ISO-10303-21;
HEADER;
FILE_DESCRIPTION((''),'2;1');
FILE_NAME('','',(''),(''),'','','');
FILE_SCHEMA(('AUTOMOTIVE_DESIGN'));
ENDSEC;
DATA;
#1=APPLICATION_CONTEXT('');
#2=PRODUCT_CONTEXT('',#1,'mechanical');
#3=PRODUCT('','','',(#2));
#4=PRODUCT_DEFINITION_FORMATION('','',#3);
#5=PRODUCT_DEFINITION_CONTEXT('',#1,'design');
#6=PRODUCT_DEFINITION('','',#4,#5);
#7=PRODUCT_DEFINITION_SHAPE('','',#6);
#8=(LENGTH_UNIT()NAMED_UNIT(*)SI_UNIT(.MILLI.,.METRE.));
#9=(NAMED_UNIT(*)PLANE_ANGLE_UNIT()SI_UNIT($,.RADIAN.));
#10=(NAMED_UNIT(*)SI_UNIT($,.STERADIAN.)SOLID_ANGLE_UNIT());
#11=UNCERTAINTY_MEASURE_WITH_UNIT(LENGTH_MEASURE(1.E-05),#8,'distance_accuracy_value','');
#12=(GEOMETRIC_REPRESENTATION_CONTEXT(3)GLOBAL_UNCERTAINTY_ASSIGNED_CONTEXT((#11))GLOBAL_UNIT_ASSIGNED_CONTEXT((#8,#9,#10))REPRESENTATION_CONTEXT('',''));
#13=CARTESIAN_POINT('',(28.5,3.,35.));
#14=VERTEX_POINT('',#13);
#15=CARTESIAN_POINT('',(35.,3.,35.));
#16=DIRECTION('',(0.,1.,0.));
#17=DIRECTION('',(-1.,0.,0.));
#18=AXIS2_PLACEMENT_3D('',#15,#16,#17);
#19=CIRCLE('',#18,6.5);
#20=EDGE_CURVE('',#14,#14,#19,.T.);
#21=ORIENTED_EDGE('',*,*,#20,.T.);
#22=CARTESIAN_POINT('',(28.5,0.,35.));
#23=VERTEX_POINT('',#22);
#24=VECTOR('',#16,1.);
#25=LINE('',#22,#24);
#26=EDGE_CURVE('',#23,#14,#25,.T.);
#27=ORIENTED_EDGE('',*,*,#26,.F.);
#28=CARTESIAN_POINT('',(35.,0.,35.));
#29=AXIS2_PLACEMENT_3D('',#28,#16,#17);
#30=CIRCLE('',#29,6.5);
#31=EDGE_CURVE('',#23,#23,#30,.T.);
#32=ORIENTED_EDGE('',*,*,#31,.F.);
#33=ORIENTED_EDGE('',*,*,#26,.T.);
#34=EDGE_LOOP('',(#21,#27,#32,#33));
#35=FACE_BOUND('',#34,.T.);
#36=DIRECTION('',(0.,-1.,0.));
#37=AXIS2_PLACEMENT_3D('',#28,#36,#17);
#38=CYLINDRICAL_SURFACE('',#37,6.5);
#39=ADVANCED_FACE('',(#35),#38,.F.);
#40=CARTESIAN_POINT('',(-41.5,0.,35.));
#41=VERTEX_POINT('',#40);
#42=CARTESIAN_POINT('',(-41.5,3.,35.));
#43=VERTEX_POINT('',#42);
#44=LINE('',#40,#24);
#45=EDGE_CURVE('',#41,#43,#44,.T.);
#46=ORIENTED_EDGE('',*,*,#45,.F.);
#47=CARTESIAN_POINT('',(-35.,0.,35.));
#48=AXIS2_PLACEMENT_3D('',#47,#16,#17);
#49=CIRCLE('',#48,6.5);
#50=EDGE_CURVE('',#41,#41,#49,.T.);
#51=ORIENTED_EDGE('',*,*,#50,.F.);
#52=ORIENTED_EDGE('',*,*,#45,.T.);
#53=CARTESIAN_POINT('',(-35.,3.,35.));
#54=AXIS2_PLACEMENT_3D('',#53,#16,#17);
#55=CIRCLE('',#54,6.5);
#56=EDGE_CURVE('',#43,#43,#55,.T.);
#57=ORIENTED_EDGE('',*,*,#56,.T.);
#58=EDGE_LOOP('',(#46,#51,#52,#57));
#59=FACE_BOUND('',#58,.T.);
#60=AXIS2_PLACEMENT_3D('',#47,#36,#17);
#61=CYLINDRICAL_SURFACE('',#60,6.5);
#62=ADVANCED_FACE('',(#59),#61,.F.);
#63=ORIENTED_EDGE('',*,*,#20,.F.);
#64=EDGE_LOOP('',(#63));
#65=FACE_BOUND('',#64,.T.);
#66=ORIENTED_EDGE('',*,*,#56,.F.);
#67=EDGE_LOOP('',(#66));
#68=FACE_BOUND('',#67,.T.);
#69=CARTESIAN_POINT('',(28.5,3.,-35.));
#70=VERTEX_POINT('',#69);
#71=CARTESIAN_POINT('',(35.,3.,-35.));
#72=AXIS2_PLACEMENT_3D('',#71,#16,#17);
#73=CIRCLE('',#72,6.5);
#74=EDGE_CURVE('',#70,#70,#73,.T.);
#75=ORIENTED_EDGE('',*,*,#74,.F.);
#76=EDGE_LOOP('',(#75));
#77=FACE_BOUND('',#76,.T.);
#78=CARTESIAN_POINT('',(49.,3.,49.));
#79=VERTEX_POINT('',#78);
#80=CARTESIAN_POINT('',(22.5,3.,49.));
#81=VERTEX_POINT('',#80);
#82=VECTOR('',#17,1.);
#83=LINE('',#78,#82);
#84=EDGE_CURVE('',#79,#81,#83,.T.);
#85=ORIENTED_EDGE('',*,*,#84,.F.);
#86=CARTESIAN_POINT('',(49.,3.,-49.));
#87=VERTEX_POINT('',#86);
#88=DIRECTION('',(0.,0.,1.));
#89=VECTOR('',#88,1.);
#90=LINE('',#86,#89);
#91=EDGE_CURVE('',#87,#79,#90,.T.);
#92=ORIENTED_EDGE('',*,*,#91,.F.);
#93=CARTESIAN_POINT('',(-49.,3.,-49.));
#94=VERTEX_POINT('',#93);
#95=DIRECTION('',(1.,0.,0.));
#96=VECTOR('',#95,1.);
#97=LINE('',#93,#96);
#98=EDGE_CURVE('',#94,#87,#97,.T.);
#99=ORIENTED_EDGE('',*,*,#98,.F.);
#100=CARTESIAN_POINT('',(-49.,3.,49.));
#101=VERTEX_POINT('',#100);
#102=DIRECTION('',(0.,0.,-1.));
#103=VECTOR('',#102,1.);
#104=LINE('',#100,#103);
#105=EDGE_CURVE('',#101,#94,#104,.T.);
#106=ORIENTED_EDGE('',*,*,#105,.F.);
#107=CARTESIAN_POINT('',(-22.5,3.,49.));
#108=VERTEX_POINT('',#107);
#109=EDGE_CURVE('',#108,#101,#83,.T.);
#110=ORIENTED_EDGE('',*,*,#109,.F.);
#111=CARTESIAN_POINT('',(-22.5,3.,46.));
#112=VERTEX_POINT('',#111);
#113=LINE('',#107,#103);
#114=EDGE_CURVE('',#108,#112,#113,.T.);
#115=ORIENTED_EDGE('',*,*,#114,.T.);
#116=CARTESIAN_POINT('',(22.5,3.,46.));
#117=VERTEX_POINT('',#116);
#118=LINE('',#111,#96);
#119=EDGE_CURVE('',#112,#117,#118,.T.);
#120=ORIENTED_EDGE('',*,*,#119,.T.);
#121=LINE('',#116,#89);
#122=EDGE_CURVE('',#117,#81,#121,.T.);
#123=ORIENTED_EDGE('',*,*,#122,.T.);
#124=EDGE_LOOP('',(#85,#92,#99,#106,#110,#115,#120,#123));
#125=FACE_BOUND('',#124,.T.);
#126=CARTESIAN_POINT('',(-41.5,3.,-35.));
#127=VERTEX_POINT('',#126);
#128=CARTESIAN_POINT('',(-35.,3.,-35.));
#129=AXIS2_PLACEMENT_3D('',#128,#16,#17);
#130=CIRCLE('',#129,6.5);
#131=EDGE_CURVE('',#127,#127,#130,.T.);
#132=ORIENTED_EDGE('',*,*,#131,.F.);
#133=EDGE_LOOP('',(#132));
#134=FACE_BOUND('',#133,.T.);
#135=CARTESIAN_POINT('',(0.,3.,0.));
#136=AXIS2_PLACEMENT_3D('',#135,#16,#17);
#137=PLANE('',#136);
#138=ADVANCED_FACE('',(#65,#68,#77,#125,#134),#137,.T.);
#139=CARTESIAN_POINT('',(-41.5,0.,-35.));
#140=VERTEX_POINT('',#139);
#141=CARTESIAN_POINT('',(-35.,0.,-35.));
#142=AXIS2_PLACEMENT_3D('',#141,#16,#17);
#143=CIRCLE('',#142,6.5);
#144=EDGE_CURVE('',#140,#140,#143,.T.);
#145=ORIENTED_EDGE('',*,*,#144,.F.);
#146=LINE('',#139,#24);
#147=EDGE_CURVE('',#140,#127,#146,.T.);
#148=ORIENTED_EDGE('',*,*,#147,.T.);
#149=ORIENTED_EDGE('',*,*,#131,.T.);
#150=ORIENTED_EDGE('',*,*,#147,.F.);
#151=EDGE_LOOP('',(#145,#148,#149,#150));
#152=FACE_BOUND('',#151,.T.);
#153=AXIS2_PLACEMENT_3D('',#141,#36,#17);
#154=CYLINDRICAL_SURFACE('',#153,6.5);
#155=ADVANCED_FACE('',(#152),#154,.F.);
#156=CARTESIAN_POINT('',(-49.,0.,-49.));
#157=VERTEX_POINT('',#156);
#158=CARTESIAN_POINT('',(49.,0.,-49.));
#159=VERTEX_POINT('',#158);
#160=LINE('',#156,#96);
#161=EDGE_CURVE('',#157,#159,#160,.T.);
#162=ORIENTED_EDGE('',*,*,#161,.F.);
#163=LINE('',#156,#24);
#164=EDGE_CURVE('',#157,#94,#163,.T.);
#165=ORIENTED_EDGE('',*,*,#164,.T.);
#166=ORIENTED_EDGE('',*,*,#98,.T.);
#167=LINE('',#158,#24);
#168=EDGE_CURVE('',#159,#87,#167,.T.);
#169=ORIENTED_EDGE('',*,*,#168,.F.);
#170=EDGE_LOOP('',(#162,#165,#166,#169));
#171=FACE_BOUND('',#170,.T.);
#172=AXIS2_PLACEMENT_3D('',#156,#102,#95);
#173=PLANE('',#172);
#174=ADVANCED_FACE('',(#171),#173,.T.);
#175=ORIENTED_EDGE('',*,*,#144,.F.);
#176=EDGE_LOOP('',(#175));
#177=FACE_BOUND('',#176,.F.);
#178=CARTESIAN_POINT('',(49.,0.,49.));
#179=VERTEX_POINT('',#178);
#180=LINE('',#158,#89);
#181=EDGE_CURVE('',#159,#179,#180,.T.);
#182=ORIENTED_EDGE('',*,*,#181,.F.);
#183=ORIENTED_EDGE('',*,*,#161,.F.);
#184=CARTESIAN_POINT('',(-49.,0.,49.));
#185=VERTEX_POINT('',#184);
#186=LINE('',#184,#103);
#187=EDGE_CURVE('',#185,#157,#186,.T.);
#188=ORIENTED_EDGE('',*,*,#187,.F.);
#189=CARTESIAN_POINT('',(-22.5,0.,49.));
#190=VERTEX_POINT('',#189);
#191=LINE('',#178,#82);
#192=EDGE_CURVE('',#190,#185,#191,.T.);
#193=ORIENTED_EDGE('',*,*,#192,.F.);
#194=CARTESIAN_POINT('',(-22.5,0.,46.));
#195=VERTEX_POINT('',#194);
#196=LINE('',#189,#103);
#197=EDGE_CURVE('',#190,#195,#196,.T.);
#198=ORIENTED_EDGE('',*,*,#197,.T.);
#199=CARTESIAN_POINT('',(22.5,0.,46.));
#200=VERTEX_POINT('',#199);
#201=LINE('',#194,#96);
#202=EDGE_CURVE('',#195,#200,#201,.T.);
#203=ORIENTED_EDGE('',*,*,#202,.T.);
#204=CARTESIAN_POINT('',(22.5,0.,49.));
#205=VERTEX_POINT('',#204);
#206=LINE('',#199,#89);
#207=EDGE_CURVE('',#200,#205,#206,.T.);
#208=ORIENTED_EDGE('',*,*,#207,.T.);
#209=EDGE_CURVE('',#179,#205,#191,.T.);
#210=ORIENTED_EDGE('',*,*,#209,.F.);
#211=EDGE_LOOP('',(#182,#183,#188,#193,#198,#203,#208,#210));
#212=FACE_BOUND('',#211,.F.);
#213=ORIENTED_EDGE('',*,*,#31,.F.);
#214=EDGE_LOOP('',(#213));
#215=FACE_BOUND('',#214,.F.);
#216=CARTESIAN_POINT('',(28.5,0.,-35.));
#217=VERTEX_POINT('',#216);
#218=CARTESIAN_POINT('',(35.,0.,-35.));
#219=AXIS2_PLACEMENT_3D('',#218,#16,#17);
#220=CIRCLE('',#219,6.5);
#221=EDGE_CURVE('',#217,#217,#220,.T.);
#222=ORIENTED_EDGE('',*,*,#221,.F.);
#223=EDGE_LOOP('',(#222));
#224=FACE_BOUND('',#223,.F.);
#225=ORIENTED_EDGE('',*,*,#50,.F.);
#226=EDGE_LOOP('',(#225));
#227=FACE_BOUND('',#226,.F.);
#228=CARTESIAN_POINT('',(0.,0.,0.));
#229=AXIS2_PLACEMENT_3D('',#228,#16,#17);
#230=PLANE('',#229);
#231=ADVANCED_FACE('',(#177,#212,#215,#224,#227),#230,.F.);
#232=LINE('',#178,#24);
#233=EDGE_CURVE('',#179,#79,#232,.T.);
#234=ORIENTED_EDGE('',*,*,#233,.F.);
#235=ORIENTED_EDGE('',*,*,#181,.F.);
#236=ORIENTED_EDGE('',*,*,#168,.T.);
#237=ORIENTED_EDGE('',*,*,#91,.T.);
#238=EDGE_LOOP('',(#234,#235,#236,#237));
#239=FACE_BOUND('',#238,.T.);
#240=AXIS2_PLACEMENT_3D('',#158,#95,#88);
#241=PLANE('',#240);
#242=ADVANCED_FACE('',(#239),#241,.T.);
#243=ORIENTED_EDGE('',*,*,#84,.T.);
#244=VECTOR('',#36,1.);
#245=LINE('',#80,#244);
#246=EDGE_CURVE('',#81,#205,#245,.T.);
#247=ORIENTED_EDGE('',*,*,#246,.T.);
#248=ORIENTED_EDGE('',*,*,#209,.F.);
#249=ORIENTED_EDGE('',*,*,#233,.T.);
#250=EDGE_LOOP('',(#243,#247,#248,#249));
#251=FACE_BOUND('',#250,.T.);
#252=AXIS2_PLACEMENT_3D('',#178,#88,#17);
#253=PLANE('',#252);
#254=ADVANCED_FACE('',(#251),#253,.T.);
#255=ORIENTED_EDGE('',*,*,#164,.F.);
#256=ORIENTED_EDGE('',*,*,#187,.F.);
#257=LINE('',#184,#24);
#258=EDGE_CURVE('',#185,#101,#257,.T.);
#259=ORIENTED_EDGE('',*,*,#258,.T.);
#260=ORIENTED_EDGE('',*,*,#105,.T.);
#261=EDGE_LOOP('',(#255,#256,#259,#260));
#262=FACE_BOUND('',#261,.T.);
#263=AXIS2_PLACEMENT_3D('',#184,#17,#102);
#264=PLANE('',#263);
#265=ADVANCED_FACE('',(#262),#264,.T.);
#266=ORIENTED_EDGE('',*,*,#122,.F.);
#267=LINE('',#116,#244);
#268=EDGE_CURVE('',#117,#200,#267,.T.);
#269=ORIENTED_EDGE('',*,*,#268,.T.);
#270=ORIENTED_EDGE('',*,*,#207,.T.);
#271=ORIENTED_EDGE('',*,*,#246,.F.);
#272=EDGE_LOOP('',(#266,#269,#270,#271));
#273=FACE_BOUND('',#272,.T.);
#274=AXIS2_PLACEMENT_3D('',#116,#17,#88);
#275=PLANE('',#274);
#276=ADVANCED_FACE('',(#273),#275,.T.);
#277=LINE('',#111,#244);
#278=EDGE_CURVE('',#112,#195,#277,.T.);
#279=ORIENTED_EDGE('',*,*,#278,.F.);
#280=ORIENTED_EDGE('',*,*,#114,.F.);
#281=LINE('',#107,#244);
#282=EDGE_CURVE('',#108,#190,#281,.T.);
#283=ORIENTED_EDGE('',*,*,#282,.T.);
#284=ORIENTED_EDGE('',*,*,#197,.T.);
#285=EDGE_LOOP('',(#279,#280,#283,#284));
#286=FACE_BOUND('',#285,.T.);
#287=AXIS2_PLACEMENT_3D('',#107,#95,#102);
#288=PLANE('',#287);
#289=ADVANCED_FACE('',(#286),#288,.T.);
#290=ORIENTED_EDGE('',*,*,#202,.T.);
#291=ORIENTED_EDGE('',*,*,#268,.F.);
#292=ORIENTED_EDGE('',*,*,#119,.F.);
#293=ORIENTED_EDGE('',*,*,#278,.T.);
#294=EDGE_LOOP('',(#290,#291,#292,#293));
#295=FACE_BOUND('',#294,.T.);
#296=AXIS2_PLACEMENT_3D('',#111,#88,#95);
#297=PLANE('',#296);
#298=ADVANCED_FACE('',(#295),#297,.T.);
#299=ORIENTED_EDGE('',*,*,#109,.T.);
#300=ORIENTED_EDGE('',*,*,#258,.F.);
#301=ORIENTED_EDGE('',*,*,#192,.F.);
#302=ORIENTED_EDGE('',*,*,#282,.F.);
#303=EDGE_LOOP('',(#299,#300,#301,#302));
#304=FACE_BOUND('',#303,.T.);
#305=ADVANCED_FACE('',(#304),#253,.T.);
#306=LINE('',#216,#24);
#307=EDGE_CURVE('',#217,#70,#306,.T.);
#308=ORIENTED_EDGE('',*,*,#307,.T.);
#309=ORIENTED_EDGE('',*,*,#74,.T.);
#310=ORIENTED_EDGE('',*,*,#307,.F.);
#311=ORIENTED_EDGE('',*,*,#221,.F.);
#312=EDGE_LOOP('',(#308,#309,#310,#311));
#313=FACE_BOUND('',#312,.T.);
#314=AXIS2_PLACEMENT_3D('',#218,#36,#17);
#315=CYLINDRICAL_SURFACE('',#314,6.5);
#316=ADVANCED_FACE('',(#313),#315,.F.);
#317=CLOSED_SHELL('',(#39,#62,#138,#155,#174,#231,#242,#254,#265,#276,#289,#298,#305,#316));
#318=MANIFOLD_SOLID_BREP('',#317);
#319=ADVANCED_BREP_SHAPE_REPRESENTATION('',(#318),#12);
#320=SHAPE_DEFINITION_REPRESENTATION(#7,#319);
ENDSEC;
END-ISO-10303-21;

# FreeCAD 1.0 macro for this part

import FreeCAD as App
import Part
import Sketcher
from FreeCAD import Vector
Q = App.Units.Quantity

doc = App.newDocument("Part")
params = doc.addObject("Spreadsheet::Sheet", "Params")
for row, (alias, value) in enumerate([
    ("sketch1_diameter", "13 mm"),
    ("sketch1_width", "98 mm"),
    ("pad1_length", "3 mm"),
    ("sketch2_width", "45 mm"),
    ("sketch2_height", "3 mm"),
    ("pocket1_length", "3 mm"),
], start=1):
    params.set(f"A{row}", alias)
    params.set(f"B{row}", "=" + value)
    params.setAlias(f"B{row}", alias)

body = doc.addObject("PartDesign::Body", "Body")

sketch1 = body.newObject("Sketcher::SketchObject", "Sketch")
sketch1.AttachmentSupport = (doc.getObject("XZ_Plane"), [""])
sketch1.MapMode = "FlatFace"
sketch1.addGeometry([
    Part.LineSegment(Vector(49, -49, 0), Vector(-49, -49, 0)),
    Part.LineSegment(Vector(-49, -49, 0), Vector(-49, 49, 0)),
    Part.LineSegment(Vector(-49, 49, 0), Vector(49, 49, 0)),
    Part.LineSegment(Vector(49, 49, 0), Vector(49, -49, 0)),
    Part.Circle(Vector(35, -35, 0), Vector(0, 0, 1), 6),
    Part.Circle(Vector(-35, -35, 0), Vector(0, 0, 1), 6),
    Part.Circle(Vector(35, 35, 0), Vector(0, 0, 1), 6),
    Part.Circle(Vector(-35, 35, 0), Vector(0, 0, 1), 6),
], False)
sketch1.addConstraint([
    Sketcher.Constraint("Coincident", 0, 2, 1, 1),
    Sketcher.Constraint("Coincident", 1, 2, 2, 1),
    Sketcher.Constraint("Coincident", 2, 2, 3, 1),
    Sketcher.Constraint("Coincident", 3, 2, 0, 1),
    Sketcher.Constraint("Horizontal", 0),
    Sketcher.Constraint("Vertical", 1),
    Sketcher.Constraint("Horizontal", 2),
    Sketcher.Constraint("Vertical", 3),
    Sketcher.Constraint("Equal", 4, 5),
    Sketcher.Constraint("Equal", 5, 6),
    Sketcher.Constraint("Equal", 6, 7),
    Sketcher.Constraint("Symmetric", 5, 3, 6, 3, -1, 1),
    Sketcher.Constraint("Symmetric", 4, 3, 7, 3, -1, 1),
    Sketcher.Constraint("Symmetric", 0, 2, 2, 2, -1, 1),
    Sketcher.Constraint("Symmetric", 4, 3, 5, 3, -2),
    Sketcher.Constraint("Equal", 2, 1),
    Sketcher.Constraint("Diameter", 4, Q("13 mm")),
    Sketcher.Constraint("DistanceX", 0, 2, 0, 1, Q("98 mm")),
    Sketcher.Constraint("DistanceX", 0, 2, 5, 3, Q("14 mm")),
    Sketcher.Constraint("DistanceY", 0, 2, 5, 3, Q("14 mm")),
])
sketch1.setExpression("Constraints[16]", "Params.sketch1_diameter")
sketch1.setExpression("Constraints[17]", "Params.sketch1_width")
pad1 = body.newObject("PartDesign::Pad", "Pad")
pad1.Profile = sketch1
pad1.setExpression("Length", "Params.pad1_length")
pad1.Reversed = True

sketch2 = body.newObject("Sketcher::SketchObject", "Sketch001")
sketch2.AttachmentSupport = (doc.getObject("XZ_Plane"), [""])
sketch2.MapMode = "FlatFace"
sketch2.AttachmentOffset = App.Placement(Vector(0, 0, -3), App.Rotation())
sketch2.addGeometry([
    Part.LineSegment(Vector(-22.5, 46, 0), Vector(-22.5, 49, 0)),
    Part.LineSegment(Vector(-22.5, 49, 0), Vector(22.5, 49, 0)),
    Part.LineSegment(Vector(22.5, 49, 0), Vector(22.5, 46, 0)),
    Part.LineSegment(Vector(22.5, 46, 0), Vector(-22.5, 46, 0)),
], False)
sketch2.addConstraint([
    Sketcher.Constraint("Coincident", 0, 2, 1, 1),
    Sketcher.Constraint("Coincident", 1, 2, 2, 1),
    Sketcher.Constraint("Coincident", 2, 2, 3, 1),
    Sketcher.Constraint("Coincident", 3, 2, 0, 1),
    Sketcher.Constraint("Vertical", 0),
    Sketcher.Constraint("Horizontal", 1),
    Sketcher.Constraint("Vertical", 2),
    Sketcher.Constraint("Horizontal", 3),
    Sketcher.Constraint("DistanceX", 1, 1, 1, 2, Q("45 mm")),
    Sketcher.Constraint("DistanceY", 0, 1, 0, 2, Q("3 mm")),
    Sketcher.Constraint("DistanceY", -1, 1, 0, 2, Q("49 mm")),
    Sketcher.Constraint("DistanceX", 0, 2, -1, 1, Q("22.5 mm")),
])
sketch2.setExpression("Constraints[8]", "Params.sketch2_width")
sketch2.setExpression("Constraints[9]", "Params.sketch2_height")
pocket1 = body.newObject("PartDesign::Pocket", "Pocket")
pocket1.Profile = sketch2
pocket1.setExpression("Length", "Params.pocket1_length")
pocket1.Reversed = True

doc.recompute()
